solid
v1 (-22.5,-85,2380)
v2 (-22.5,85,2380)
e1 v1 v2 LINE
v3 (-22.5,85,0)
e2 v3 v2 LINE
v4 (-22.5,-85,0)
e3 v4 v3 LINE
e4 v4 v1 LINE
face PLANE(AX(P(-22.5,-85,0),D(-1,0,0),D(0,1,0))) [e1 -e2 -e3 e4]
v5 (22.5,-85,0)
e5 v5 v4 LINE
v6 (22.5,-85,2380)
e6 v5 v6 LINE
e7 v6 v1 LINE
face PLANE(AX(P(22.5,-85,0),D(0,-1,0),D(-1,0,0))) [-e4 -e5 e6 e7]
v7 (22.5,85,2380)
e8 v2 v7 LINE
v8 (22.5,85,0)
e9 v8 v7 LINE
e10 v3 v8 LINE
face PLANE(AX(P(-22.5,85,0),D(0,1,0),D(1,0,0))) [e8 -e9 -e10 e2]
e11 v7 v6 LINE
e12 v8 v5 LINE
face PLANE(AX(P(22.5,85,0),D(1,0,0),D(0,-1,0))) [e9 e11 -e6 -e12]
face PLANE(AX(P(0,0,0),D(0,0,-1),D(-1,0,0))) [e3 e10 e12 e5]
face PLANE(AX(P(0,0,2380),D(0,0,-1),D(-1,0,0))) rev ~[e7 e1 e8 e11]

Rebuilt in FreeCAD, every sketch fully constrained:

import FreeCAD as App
import Part
import Sketcher
from FreeCAD import Vector

doc = App.newDocument("Part")
body = doc.addObject("PartDesign::Body", "Body")

# Sketch on XY plane
sketch1 = body.newObject("Sketcher::SketchObject", "Sketch")
sketch1.AttachmentSupport = (doc.getObject("XY_Plane"), [""])
sketch1.MapMode = "FlatFace"
sketch1.addGeometry([
    Part.LineSegment(Vector(22.5, 85, 0), Vector(22.5, -85, 0)),
    Part.LineSegment(Vector(22.5, -85, 0), Vector(-22.5, -85, 0)),
    Part.LineSegment(Vector(-22.5, -85, 0), Vector(-22.5, 85, 0)),
    Part.LineSegment(Vector(-22.5, 85, 0), Vector(22.5, 85, 0)),
], False)
sketch1.addConstraint([
    Sketcher.Constraint("Coincident", 0, 2, 1, 1),
    Sketcher.Constraint("Coincident", 1, 2, 2, 1),
    Sketcher.Constraint("Coincident", 2, 2, 3, 1),
    Sketcher.Constraint("Coincident", 3, 2, 0, 1),
    Sketcher.Constraint("Vertical", 0),
    Sketcher.Constraint("Horizontal", 1),
    Sketcher.Constraint("Vertical", 2),
    Sketcher.Constraint("Horizontal", 3),
    Sketcher.Constraint("Symmetric", 0, 2, 2, 2, -1, 1),
    Sketcher.Constraint("DistanceX", 1, 2, 1, 1, 45.0),
    Sketcher.Constraint("DistanceY", 0, 2, 0, 1, 170.0),
])
pad1 = body.newObject("PartDesign::Pad", "Pad")
pad1.Profile = sketch1
pad1.Length = 2380

doc.recompute()
